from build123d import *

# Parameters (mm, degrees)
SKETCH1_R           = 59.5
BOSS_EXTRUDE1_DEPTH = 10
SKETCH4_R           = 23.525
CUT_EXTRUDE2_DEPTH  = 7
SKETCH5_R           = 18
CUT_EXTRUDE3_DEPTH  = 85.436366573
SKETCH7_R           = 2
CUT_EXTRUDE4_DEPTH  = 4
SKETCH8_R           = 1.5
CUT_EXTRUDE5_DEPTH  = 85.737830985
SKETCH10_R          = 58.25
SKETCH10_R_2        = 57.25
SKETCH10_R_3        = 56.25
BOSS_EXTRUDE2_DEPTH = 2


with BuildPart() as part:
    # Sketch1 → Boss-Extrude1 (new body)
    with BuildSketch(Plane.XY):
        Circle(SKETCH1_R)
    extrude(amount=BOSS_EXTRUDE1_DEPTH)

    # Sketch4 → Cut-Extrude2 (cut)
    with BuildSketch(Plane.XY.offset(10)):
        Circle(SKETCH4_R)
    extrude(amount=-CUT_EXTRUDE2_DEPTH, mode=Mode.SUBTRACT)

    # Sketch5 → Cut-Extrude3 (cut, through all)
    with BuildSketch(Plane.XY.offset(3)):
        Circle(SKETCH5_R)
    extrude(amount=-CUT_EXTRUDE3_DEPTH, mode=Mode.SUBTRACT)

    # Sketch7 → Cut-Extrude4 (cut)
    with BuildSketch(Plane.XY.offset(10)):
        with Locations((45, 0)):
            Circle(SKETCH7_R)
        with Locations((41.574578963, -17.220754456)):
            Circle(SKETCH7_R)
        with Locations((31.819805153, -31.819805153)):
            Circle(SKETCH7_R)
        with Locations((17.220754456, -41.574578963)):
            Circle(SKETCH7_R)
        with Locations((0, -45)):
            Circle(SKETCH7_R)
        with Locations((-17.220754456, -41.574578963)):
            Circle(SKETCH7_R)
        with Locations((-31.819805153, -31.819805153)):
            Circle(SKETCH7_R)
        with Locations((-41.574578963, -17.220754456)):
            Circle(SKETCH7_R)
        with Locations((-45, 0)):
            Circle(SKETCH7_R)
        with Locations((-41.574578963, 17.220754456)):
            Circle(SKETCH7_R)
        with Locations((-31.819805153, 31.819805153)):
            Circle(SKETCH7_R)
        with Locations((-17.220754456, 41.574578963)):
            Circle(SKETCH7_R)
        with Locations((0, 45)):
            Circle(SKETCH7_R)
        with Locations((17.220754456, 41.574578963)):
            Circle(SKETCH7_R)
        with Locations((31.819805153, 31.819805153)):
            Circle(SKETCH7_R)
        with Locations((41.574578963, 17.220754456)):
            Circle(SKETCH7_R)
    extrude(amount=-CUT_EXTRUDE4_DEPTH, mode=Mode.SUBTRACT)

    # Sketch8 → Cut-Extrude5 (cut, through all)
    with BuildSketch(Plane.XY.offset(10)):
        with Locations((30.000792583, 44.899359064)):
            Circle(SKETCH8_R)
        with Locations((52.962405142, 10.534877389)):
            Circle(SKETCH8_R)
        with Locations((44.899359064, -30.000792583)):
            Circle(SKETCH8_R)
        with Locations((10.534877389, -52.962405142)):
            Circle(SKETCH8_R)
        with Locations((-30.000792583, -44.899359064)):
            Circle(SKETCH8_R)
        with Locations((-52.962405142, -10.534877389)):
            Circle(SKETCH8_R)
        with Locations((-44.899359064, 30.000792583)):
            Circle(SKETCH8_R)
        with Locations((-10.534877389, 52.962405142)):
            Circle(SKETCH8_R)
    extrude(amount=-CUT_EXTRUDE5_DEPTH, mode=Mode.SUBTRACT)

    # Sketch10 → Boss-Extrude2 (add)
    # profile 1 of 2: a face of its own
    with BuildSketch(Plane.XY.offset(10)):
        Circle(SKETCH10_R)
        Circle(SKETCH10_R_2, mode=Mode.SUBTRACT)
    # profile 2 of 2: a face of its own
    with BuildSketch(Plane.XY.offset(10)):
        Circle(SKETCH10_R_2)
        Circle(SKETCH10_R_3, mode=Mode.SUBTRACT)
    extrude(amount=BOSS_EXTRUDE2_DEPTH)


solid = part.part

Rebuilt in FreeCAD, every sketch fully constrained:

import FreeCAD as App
import Part
import Sketcher
from FreeCAD import Vector
Q = App.Units.Quantity

doc = App.newDocument("Part")
body = doc.addObject("PartDesign::Body", "Body")

# Sketch on XY plane
sketch1 = doc.addObject("Sketcher::SketchObject", "Sketch")
body.addObject(sketch1)
sketch1.AttachmentSupport = (doc.XY_Plane, [""])
sketch1.MapMode = "FlatFace"
sketch1.addGeometry(Part.Circle(Vector(0, 0, 0), Vector(0, 0, 1), 60), False)
sketch1.addConstraint(Sketcher.Constraint("Coincident", 0, 3, -1, 1))
sketch1.addConstraint(Sketcher.Constraint("Diameter", 0, Q("119 mm")))
pad1 = doc.addObject("PartDesign::Pad", "Pad")
body.addObject(pad1)
pad1.Profile = sketch1
pad1.Length = 10

# Sketch on XY plane
sketch2 = doc.addObject("Sketcher::SketchObject", "Sketch001")
body.addObject(sketch2)
sketch2.AttachmentSupport = (doc.XY_Plane, [""])
sketch2.MapMode = "FlatFace"
sketch2.AttachmentOffset = App.Placement(Vector(0, 0, 10), App.Rotation())
sketch2.addGeometry(Part.Circle(Vector(0, 0, 0), Vector(0, 0, 1), 24), False)
sketch2.addConstraint(Sketcher.Constraint("Coincident", 0, 3, -1, 1))
sketch2.addConstraint(Sketcher.Constraint("Diameter", 0, Q("47.05 mm")))
pocket1 = doc.addObject("PartDesign::Pocket", "Pocket")
body.addObject(pocket1)
pocket1.Profile = sketch2
pocket1.Length = 7

# Sketch on XY plane
sketch3 = doc.addObject("Sketcher::SketchObject", "Sketch002")
body.addObject(sketch3)
sketch3.AttachmentSupport = (doc.XY_Plane, [""])
sketch3.MapMode = "FlatFace"
sketch3.AttachmentOffset = App.Placement(Vector(0, 0, 3), App.Rotation())
sketch3.addGeometry(Part.Circle(Vector(0, 0, 0), Vector(0, 0, 1), 18), False)
sketch3.addConstraint(Sketcher.Constraint("Coincident", 0, 3, -1, 1))
sketch3.addConstraint(Sketcher.Constraint("Diameter", 0, Q("36 mm")))
pocket2 = doc.addObject("PartDesign::Pocket", "Pocket001")
body.addObject(pocket2)
pocket2.Profile = sketch3
pocket2.Type = "ThroughAll"

# Sketch on XY plane
sketch4 = doc.addObject("Sketcher::SketchObject", "Sketch003")
body.addObject(sketch4)
sketch4.AttachmentSupport = (doc.XY_Plane, [""])
sketch4.MapMode = "FlatFace"
sketch4.AttachmentOffset = App.Placement(Vector(0, 0, 10), App.Rotation())
sketch4.addGeometry(Part.Circle(Vector(45, 0, 0), Vector(0, 0, 1), 2), False)
sketch4.addGeometry(Part.Circle(Vector(41.6, -17.2, 0), Vector(0, 0, 1), 2), False)
sketch4.addGeometry(Part.Circle(Vector(31.8, -31.8, 0), Vector(0, 0, 1), 2), False)
sketch4.addGeometry(Part.Circle(Vector(17.2, -41.6, 0), Vector(0, 0, 1), 2), False)
sketch4.addGeometry(Part.Circle(Vector(0, -45, 0), Vector(0, 0, 1), 2), False)
sketch4.addGeometry(Part.Circle(Vector(-17.2, -41.6, 0), Vector(0, 0, 1), 2), False)
sketch4.addGeometry(Part.Circle(Vector(-31.8, -31.8, 0), Vector(0, 0, 1), 2), False)
sketch4.addGeometry(Part.Circle(Vector(-41.6, -17.2, 0), Vector(0, 0, 1), 2), False)
sketch4.addGeometry(Part.Circle(Vector(-45, 0, 0), Vector(0, 0, 1), 2), False)
sketch4.addGeometry(Part.Circle(Vector(-41.6, 17.2, 0), Vector(0, 0, 1), 2), False)
sketch4.addGeometry(Part.Circle(Vector(-31.8, 31.8, 0), Vector(0, 0, 1), 2), False)
sketch4.addGeometry(Part.Circle(Vector(-17.2, 41.6, 0), Vector(0, 0, 1), 2), False)
sketch4.addGeometry(Part.Circle(Vector(0, 45, 0), Vector(0, 0, 1), 2), False)
sketch4.addGeometry(Part.Circle(Vector(17.2, 41.6, 0), Vector(0, 0, 1), 2), False)
sketch4.addGeometry(Part.Circle(Vector(31.8, 31.8, 0), Vector(0, 0, 1), 2), False)
sketch4.addGeometry(Part.Circle(Vector(41.6, 17.2, 0), Vector(0, 0, 1), 2), False)
sketch4.addConstraint(Sketcher.Constraint("Equal", 0, 1))
sketch4.addConstraint(Sketcher.Constraint("Equal", 1, 2))
sketch4.addConstraint(Sketcher.Constraint("Equal", 2, 3))
sketch4.addConstraint(Sketcher.Constraint("Equal", 3, 4))
sketch4.addConstraint(Sketcher.Constraint("Equal", 4, 5))
sketch4.addConstraint(Sketcher.Constraint("Equal", 5, 6))
sketch4.addConstraint(Sketcher.Constraint("Equal", 6, 7))
sketch4.addConstraint(Sketcher.Constraint("Equal", 7, 8))
sketch4.addConstraint(Sketcher.Constraint("Equal", 8, 9))
sketch4.addConstraint(Sketcher.Constraint("Equal", 9, 10))
sketch4.addConstraint(Sketcher.Constraint("Equal", 10, 11))
sketch4.addConstraint(Sketcher.Constraint("Equal", 11, 12))
sketch4.addConstraint(Sketcher.Constraint("Equal", 12, 13))
sketch4.addConstraint(Sketcher.Constraint("Equal", 13, 14))
sketch4.addConstraint(Sketcher.Constraint("Equal", 14, 15))
sketch4.addConstraint(Sketcher.Constraint("Symmetric", 0, 3, 8, 3, -1, 1))
sketch4.addConstraint(Sketcher.Constraint("Symmetric", 1, 3, 9, 3, -1, 1))
sketch4.addConstraint(Sketcher.Constraint("Symmetric", 2, 3, 10, 3, -1, 1))
sketch4.addConstraint(Sketcher.Constraint("Symmetric", 3, 3, 11, 3, -1, 1))
sketch4.addConstraint(Sketcher.Constraint("Symmetric", 4, 3, 12, 3, -1, 1))
sketch4.addConstraint(Sketcher.Constraint("Symmetric", 5, 3, 13, 3, -1, 1))
sketch4.addConstraint(Sketcher.Constraint("Symmetric", 6, 3, 14, 3, -1, 1))
sketch4.addConstraint(Sketcher.Constraint("Symmetric", 7, 3, 15, 3, -1, 1))
sketch4.addConstraint(Sketcher.Constraint("Symmetric", 3, 3, 5, 3, -2))
sketch4.addConstraint(Sketcher.Constraint("Symmetric", 2, 3, 6, 3, -2))
sketch4.addConstraint(Sketcher.Constraint("Symmetric", 1, 3, 7, 3, -2))
sketch4.addConstraint(Sketcher.Constraint("PointOnObject", 0, 3, -1))
sketch4.addConstraint(Sketcher.Constraint("PointOnObject", 4, 3, -2))
sketch4.addConstraint(Sketcher.Constraint("Diameter", 0, Q("4 mm")))
sketch4.addConstraint(Sketcher.Constraint("DistanceX", -1, 1, 0, 3, Q("45 mm")))
sketch4.addConstraint(Sketcher.Constraint("DistanceY", 4, 3, -1, 1, Q("45 mm")))
sketch4.addConstraint(Sketcher.Constraint("DistanceX", -1, 1, 1, 3, Q("41.574579 mm")))
sketch4.addConstraint(Sketcher.Constraint("DistanceY", 3, 3, -1, 1, Q("41.574579 mm")))
sketch4.addConstraint(Sketcher.Constraint("DistanceY", 2, 3, 1, 3, Q("14.599051 mm")))
sketch4.addConstraint(Sketcher.Constraint("DistanceX", 3, 3, 2, 3, Q("14.599051 mm")))
sketch4.addConstraint(Sketcher.Constraint("DistanceX", 5, 3, 3, 3, Q("34.441509 mm")))
sketch4.addConstraint(Sketcher.Constraint("DistanceY", 7, 3, 9, 3, Q("34.441509 mm")))
pocket3 = doc.addObject("PartDesign::Pocket", "Pocket002")
body.addObject(pocket3)
pocket3.Profile = sketch4
pocket3.Length = 4

# Sketch on XY plane
sketch5 = doc.addObject("Sketcher::SketchObject", "Sketch004")
body.addObject(sketch5)
sketch5.AttachmentSupport = (doc.XY_Plane, [""])
sketch5.MapMode = "FlatFace"
sketch5.AttachmentOffset = App.Placement(Vector(0, 0, 10), App.Rotation())
sketch5.addGeometry(Part.Circle(Vector(30, 44.9, 0), Vector(0, 0, 1), 1.5), False)
sketch5.addGeometry(Part.Circle(Vector(53, 10.5, 0), Vector(0, 0, 1), 1.5), False)
sketch5.addGeometry(Part.Circle(Vector(44.9, -30, 0), Vector(0, 0, 1), 1.5), False)
sketch5.addGeometry(Part.Circle(Vector(10.5, -53, 0), Vector(0, 0, 1), 1.5), False)
sketch5.addGeometry(Part.Circle(Vector(-30, -44.9, 0), Vector(0, 0, 1), 1.5), False)
sketch5.addGeometry(Part.Circle(Vector(-53, -10.5, 0), Vector(0, 0, 1), 1.5), False)
sketch5.addGeometry(Part.Circle(Vector(-44.9, 30, 0), Vector(0, 0, 1), 1.5), False)
sketch5.addGeometry(Part.Circle(Vector(-10.5, 53, 0), Vector(0, 0, 1), 1.5), False)
sketch5.addConstraint(Sketcher.Constraint("Equal", 0, 1))
sketch5.addConstraint(Sketcher.Constraint("Equal", 1, 2))
sketch5.addConstraint(Sketcher.Constraint("Equal", 2, 3))
sketch5.addConstraint(Sketcher.Constraint("Equal", 3, 4))
sketch5.addConstraint(Sketcher.Constraint("Equal", 4, 5))
sketch5.addConstraint(Sketcher.Constraint("Equal", 5, 6))
sketch5.addConstraint(Sketcher.Constraint("Equal", 6, 7))
sketch5.addConstraint(Sketcher.Constraint("Symmetric", 0, 3, 4, 3, -1, 1))
sketch5.addConstraint(Sketcher.Constraint("Symmetric", 1, 3, 5, 3, -1, 1))
sketch5.addConstraint(Sketcher.Constraint("Symmetric", 2, 3, 6, 3, -1, 1))
sketch5.addConstraint(Sketcher.Constraint("Symmetric", 3, 3, 7, 3, -1, 1))
sketch5.addConstraint(Sketcher.Constraint("Diameter", 0, Q("3 mm")))
sketch5.addConstraint(Sketcher.Constraint("DistanceY", -1, 1, 0, 3, Q("44.899359 mm")))
sketch5.addConstraint(Sketcher.Constraint("DistanceX", -1, 1, 2, 3, Q("44.899359 mm")))
sketch5.addConstraint(Sketcher.Constraint("DistanceY", 1, 3, 0, 3, Q("34.364482 mm")))
sketch5.addConstraint(Sketcher.Constraint("DistanceY", 2, 3, 1, 3, Q("40.53567 mm")))
sketch5.addConstraint(Sketcher.Constraint("DistanceX", 3, 3, 2, 3, Q("34.364482 mm")))
sketch5.addConstraint(Sketcher.Constraint("DistanceX", 4, 3, 3, 3, Q("40.53567 mm")))
sketch5.addConstraint(Sketcher.Constraint("DistanceX", 5, 3, 1, 3, Q("105.92481 mm")))
sketch5.addConstraint(Sketcher.Constraint("DistanceY", 3, 3, -1, 1, Q("52.962405 mm")))
pocket4 = doc.addObject("PartDesign::Pocket", "Pocket003")
body.addObject(pocket4)
pocket4.Profile = sketch5
pocket4.Type = "ThroughAll"

# Sketch on XY plane
sketch6 = doc.addObject("Sketcher::SketchObject", "Sketch005")
body.addObject(sketch6)
sketch6.AttachmentSupport = (doc.XY_Plane, [""])
sketch6.MapMode = "FlatFace"
sketch6.AttachmentOffset = App.Placement(Vector(0, 0, 10), App.Rotation())
sketch6.addGeometry(Part.Circle(Vector(0, 0, 0), Vector(0, 0, 1), 58), False)
sketch6.addGeometry(Part.Circle(Vector(0, 0, 0), Vector(0, 0, 1), 56), False)
sketch6.addConstraint(Sketcher.Constraint("Coincident", 0, 3, -1, 1))
sketch6.addConstraint(Sketcher.Constraint("Coincident", 1, 3, -1, 1))
sketch6.addConstraint(Sketcher.Constraint("Diameter", 0, Q("116.5 mm")))
sketch6.addConstraint(Sketcher.Constraint("Diameter", 1, Q("112.5 mm")))
pad2 = doc.addObject("PartDesign::Pad", "Pad001")
body.addObject(pad2)
pad2.Profile = sketch6
pad2.Length = 2

doc.recompute()
